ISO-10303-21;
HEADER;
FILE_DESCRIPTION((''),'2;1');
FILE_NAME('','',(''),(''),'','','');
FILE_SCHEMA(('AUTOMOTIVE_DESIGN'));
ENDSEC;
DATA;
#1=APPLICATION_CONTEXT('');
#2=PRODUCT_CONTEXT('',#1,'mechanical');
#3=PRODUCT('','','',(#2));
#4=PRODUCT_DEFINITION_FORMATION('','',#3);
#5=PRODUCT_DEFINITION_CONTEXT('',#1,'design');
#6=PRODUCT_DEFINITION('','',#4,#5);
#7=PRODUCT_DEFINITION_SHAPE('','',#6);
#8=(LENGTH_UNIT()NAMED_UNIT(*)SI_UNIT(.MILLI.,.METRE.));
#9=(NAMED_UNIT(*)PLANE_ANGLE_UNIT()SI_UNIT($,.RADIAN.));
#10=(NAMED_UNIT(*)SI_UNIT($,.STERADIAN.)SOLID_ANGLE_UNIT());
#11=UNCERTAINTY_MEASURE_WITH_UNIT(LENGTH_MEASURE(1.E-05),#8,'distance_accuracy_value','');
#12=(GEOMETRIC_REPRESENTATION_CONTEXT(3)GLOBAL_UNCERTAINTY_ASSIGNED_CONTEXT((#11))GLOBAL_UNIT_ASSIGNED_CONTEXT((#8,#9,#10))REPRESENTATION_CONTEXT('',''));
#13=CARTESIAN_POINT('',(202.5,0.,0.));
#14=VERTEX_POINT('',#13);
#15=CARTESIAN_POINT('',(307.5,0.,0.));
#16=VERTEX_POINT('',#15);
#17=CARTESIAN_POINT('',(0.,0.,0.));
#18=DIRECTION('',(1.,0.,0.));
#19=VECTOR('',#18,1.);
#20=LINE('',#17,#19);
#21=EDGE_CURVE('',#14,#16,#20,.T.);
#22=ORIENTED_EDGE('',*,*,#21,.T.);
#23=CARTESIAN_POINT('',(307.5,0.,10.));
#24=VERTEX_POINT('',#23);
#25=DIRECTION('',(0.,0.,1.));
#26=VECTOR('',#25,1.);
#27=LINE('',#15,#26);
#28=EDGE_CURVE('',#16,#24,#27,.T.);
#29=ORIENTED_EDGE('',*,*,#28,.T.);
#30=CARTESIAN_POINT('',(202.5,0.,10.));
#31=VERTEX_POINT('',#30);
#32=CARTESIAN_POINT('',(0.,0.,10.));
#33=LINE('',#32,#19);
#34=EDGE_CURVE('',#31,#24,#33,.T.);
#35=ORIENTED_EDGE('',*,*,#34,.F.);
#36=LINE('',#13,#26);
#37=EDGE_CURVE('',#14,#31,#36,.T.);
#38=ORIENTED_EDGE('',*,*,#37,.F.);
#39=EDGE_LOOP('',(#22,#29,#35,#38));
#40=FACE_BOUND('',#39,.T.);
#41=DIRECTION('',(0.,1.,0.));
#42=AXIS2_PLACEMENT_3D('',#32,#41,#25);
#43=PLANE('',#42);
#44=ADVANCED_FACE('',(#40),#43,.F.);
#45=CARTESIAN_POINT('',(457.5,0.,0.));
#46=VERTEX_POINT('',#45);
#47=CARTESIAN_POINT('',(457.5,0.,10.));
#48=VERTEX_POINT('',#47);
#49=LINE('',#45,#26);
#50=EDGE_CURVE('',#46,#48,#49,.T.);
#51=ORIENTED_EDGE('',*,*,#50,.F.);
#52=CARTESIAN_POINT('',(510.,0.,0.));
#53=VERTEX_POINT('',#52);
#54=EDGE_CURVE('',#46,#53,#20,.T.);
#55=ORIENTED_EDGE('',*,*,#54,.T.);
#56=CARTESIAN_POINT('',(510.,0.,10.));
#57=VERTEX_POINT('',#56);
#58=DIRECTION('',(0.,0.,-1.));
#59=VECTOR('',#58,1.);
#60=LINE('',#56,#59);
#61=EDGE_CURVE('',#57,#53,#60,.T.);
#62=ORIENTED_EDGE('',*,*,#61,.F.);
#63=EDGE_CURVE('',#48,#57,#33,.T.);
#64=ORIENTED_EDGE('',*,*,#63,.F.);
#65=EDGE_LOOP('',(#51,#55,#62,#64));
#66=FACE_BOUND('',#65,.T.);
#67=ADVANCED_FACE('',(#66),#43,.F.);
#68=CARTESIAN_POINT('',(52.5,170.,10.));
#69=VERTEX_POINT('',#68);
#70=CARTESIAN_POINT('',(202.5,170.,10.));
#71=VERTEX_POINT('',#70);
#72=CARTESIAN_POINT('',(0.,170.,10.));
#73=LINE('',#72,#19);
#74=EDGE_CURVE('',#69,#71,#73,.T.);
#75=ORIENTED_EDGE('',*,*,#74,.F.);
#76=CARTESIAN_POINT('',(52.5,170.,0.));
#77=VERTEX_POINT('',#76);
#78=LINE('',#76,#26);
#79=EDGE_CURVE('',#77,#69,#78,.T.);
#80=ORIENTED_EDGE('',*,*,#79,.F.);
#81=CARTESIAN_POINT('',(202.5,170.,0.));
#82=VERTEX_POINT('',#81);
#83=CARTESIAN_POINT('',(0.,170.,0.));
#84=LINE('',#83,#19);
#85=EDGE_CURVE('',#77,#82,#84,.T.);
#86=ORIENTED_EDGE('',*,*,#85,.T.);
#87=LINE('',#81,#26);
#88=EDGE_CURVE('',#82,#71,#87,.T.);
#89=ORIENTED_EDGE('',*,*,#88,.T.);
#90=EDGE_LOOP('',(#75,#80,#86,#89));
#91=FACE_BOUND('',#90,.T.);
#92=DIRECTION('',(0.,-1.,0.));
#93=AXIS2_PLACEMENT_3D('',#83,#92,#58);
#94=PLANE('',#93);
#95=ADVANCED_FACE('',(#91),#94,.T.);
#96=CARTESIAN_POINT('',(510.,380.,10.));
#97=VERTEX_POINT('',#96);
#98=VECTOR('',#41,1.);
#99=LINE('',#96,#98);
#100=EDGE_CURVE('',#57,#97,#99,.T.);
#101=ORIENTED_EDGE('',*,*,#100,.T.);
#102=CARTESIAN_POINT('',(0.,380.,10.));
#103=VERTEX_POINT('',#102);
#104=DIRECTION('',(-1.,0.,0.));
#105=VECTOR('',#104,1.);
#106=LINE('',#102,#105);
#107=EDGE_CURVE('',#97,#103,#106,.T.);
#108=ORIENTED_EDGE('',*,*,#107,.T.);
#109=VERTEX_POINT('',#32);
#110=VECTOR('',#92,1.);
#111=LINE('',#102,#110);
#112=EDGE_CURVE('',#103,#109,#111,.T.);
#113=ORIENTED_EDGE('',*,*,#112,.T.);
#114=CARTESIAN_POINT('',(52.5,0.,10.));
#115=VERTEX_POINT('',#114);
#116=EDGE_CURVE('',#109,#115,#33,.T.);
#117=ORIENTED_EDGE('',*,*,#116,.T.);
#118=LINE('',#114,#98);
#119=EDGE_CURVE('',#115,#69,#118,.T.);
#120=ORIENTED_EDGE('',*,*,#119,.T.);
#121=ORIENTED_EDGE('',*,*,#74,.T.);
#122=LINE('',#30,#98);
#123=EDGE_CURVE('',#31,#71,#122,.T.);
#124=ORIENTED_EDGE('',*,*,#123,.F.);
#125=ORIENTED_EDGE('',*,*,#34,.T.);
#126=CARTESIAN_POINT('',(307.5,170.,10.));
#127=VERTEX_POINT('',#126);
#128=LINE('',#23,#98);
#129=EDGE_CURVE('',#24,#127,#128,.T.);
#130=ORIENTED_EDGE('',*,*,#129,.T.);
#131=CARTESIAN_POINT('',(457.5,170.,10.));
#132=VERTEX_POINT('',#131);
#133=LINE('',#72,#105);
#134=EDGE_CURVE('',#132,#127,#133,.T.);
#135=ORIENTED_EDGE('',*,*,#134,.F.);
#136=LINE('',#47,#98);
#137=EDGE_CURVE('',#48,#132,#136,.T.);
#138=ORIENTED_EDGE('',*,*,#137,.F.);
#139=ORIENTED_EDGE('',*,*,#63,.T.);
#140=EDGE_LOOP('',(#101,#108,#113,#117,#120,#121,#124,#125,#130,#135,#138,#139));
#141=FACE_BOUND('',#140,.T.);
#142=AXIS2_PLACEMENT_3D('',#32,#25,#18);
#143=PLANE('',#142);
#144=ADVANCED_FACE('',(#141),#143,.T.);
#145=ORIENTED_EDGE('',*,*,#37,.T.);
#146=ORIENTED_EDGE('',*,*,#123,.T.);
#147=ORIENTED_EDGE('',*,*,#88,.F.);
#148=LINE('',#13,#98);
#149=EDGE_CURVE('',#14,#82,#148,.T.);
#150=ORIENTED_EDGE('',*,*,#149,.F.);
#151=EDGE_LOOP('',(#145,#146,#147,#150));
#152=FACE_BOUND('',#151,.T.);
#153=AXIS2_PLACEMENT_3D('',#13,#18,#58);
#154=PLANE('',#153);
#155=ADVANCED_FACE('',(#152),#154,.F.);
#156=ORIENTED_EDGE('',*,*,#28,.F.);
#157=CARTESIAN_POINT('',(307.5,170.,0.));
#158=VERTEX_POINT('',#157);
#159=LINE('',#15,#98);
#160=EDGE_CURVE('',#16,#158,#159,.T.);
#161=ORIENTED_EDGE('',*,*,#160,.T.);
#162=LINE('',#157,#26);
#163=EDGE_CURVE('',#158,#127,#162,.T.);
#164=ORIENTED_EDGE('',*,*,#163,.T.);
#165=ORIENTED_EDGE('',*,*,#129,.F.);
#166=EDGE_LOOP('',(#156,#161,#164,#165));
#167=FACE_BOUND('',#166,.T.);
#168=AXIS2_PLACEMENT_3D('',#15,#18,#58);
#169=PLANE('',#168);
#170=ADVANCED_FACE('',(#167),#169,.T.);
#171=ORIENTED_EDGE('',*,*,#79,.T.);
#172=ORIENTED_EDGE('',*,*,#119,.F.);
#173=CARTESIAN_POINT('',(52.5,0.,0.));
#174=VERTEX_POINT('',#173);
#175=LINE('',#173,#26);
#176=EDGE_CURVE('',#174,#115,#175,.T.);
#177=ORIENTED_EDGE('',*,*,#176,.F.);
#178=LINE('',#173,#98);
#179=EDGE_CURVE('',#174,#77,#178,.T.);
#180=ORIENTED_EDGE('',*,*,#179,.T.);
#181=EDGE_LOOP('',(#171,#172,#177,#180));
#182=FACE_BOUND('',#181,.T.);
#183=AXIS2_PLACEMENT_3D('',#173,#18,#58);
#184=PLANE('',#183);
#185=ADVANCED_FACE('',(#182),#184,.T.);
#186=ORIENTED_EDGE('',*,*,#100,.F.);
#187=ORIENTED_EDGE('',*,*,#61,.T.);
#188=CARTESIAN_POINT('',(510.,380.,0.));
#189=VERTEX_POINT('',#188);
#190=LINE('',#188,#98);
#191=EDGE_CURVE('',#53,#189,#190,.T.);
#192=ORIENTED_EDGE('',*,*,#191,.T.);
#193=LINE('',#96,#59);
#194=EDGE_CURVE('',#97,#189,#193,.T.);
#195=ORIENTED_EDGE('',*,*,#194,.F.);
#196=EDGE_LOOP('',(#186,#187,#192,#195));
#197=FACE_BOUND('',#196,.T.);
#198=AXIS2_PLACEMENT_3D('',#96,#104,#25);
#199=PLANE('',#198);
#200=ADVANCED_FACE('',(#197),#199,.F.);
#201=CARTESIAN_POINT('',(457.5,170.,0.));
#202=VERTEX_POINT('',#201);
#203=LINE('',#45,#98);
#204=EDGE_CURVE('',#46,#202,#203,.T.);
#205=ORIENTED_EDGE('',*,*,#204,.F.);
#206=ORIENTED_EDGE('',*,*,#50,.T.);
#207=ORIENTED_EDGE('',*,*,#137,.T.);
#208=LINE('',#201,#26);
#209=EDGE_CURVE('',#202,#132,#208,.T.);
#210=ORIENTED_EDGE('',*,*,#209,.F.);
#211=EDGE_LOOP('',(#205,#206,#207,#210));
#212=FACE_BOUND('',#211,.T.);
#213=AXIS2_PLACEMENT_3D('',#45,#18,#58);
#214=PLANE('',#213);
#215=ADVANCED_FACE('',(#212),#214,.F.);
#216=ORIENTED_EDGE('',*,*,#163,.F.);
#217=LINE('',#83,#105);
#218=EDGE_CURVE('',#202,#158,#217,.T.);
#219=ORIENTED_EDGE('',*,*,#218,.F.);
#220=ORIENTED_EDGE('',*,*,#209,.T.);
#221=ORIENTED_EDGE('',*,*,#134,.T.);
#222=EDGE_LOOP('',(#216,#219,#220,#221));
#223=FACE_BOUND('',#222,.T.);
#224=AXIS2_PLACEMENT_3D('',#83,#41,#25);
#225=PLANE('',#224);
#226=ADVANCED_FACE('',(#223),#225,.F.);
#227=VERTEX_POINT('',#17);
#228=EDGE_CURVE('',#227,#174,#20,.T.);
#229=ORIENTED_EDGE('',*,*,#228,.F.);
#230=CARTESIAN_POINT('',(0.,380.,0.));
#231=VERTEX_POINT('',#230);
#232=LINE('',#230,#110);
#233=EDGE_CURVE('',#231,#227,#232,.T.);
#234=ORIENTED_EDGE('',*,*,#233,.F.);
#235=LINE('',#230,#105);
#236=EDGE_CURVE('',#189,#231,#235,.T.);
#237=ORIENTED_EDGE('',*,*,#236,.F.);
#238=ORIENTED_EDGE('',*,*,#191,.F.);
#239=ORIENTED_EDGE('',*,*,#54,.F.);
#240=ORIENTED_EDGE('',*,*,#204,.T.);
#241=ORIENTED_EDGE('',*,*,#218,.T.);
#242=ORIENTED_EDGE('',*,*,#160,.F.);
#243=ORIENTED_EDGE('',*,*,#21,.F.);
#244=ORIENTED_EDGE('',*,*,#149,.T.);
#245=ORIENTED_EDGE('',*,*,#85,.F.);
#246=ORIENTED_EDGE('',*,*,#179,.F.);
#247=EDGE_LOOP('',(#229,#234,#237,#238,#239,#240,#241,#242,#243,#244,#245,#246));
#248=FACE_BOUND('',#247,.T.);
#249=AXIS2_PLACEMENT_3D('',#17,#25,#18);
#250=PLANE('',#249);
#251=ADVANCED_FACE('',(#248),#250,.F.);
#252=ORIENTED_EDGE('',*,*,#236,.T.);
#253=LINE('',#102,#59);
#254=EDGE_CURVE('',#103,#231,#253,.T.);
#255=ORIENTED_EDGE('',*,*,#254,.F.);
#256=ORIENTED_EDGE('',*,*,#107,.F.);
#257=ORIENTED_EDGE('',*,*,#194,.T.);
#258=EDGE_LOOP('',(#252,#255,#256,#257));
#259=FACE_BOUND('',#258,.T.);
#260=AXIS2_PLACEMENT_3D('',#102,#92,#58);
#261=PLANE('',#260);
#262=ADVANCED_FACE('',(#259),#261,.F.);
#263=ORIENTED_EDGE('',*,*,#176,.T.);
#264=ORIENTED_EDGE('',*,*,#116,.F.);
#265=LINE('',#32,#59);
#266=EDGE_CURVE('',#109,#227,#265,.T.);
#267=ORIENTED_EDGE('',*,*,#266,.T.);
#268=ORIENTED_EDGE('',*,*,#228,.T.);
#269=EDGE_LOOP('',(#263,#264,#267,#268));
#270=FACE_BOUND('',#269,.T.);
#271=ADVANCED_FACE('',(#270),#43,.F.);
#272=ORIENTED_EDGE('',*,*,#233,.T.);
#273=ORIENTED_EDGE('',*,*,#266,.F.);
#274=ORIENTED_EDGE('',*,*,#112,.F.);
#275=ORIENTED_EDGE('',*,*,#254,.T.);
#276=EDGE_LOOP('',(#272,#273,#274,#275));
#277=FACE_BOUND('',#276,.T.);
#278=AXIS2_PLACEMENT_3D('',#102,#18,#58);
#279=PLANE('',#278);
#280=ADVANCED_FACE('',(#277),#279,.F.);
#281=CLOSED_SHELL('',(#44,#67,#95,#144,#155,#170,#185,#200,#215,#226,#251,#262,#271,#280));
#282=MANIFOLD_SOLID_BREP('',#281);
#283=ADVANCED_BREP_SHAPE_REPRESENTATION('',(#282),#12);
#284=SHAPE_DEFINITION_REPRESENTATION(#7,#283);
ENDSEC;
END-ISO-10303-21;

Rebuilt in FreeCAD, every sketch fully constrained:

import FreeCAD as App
import Part
import Sketcher
from FreeCAD import Vector
Q = App.Units.Quantity

doc = App.newDocument("Part")
body = doc.addObject("PartDesign::Body", "Body")

# Sketch on XY plane
sketch1 = body.newObject("Sketcher::SketchObject", "Sketch")
sketch1.AttachmentSupport = (doc.getObject("XY_Plane"), [""])
sketch1.MapMode = "FlatFace"
sketch1.addGeometry([
    Part.LineSegment(Vector(0, 380, 0), Vector(0, 0, 0)),
    Part.LineSegment(Vector(0, 0, 0), Vector(510, 0, 0)),
    Part.LineSegment(Vector(510, 0, 0), Vector(510, 380, 0)),
    Part.LineSegment(Vector(510, 380, 0), Vector(0, 380, 0)),
], False)
sketch1.addConstraint([
    Sketcher.Constraint("Coincident", 0, 2, 1, 1),
    Sketcher.Constraint("Coincident", 1, 2, 2, 1),
    Sketcher.Constraint("Coincident", 2, 2, 3, 1),
    Sketcher.Constraint("Coincident", 3, 2, 0, 1),
    Sketcher.Constraint("Vertical", 0),
    Sketcher.Constraint("Horizontal", 1),
    Sketcher.Constraint("Vertical", 2),
    Sketcher.Constraint("Horizontal", 3),
    Sketcher.Constraint("Coincident", 0, 2, -1, 1),
    Sketcher.Constraint("DistanceX", 1, 1, 1, 2, Q("510 mm")),
    Sketcher.Constraint("DistanceY", 0, 2, 0, 1, Q("380 mm")),
])
pad1 = body.newObject("PartDesign::Pad", "Pad")
pad1.Profile = sketch1
pad1.Length = 10

# Sketch on XY plane
sketch2 = body.newObject("Sketcher::SketchObject", "Sketch001")
sketch2.AttachmentSupport = (doc.getObject("XY_Plane"), [""])
sketch2.MapMode = "FlatFace"
sketch2.AttachmentOffset = App.Placement(Vector(0, 0, 10), App.Rotation())
sketch2.addGeometry([
    Part.LineSegment(Vector(52, 170, 0), Vector(52, 0, 0)),  # 0
    Part.LineSegment(Vector(52, 0, 0), Vector(202, 0, 0)),  # 1
    Part.LineSegment(Vector(202, 0, 0), Vector(202, 170, 0)),  # 2
    Part.LineSegment(Vector(202, 170, 0), Vector(52, 170, 0)),  # 3
    Part.LineSegment(Vector(308, 170, 0), Vector(308, 0, 0)),  # 4
    Part.LineSegment(Vector(308, 0, 0), Vector(458, 0, 0)),  # 5
    Part.LineSegment(Vector(458, 0, 0), Vector(458, 170, 0)),  # 6
    Part.LineSegment(Vector(458, 170, 0), Vector(308, 170, 0)),  # 7
], False)
sketch2.addConstraint([
    Sketcher.Constraint("Coincident", 0, 2, 1, 1),
    Sketcher.Constraint("Coincident", 1, 2, 2, 1),
    Sketcher.Constraint("Coincident", 2, 2, 3, 1),
    Sketcher.Constraint("Coincident", 3, 2, 0, 1),
    Sketcher.Constraint("Coincident", 4, 2, 5, 1),
    Sketcher.Constraint("Coincident", 5, 2, 6, 1),
    Sketcher.Constraint("Coincident", 6, 2, 7, 1),
    Sketcher.Constraint("Coincident", 7, 2, 4, 1),
    Sketcher.Constraint("Vertical", 0),
    Sketcher.Constraint("Horizontal", 1),
    Sketcher.Constraint("Vertical", 2),
    Sketcher.Constraint("Horizontal", 3),
    Sketcher.Constraint("Vertical", 4),
    Sketcher.Constraint("Horizontal", 5),
    Sketcher.Constraint("Vertical", 6),
    Sketcher.Constraint("Horizontal", 7),
    Sketcher.Constraint("PointOnObject", 0, 2, -1),
    Sketcher.Constraint("PointOnObject", 4, 2, -1),
    Sketcher.Constraint("Horizontal", 3, 2, 6, 2),
    Sketcher.Constraint("Equal", 3, 5),
    Sketcher.Constraint("DistanceX", 1, 1, 1, 2, Q("150 mm")),
    Sketcher.Constraint("DistanceY", 0, 2, 0, 1, Q("170 mm")),
    Sketcher.Constraint("DistanceX", 1, 2, 4, 2, Q("105 mm")),
    Sketcher.Constraint("DistanceX", -1, 1, 0, 2, Q("52.5 mm")),
])
pocket1 = body.newObject("PartDesign::Pocket", "Pocket")
pocket1.Profile = sketch2
pocket1.Length = 10

doc.recompute()
